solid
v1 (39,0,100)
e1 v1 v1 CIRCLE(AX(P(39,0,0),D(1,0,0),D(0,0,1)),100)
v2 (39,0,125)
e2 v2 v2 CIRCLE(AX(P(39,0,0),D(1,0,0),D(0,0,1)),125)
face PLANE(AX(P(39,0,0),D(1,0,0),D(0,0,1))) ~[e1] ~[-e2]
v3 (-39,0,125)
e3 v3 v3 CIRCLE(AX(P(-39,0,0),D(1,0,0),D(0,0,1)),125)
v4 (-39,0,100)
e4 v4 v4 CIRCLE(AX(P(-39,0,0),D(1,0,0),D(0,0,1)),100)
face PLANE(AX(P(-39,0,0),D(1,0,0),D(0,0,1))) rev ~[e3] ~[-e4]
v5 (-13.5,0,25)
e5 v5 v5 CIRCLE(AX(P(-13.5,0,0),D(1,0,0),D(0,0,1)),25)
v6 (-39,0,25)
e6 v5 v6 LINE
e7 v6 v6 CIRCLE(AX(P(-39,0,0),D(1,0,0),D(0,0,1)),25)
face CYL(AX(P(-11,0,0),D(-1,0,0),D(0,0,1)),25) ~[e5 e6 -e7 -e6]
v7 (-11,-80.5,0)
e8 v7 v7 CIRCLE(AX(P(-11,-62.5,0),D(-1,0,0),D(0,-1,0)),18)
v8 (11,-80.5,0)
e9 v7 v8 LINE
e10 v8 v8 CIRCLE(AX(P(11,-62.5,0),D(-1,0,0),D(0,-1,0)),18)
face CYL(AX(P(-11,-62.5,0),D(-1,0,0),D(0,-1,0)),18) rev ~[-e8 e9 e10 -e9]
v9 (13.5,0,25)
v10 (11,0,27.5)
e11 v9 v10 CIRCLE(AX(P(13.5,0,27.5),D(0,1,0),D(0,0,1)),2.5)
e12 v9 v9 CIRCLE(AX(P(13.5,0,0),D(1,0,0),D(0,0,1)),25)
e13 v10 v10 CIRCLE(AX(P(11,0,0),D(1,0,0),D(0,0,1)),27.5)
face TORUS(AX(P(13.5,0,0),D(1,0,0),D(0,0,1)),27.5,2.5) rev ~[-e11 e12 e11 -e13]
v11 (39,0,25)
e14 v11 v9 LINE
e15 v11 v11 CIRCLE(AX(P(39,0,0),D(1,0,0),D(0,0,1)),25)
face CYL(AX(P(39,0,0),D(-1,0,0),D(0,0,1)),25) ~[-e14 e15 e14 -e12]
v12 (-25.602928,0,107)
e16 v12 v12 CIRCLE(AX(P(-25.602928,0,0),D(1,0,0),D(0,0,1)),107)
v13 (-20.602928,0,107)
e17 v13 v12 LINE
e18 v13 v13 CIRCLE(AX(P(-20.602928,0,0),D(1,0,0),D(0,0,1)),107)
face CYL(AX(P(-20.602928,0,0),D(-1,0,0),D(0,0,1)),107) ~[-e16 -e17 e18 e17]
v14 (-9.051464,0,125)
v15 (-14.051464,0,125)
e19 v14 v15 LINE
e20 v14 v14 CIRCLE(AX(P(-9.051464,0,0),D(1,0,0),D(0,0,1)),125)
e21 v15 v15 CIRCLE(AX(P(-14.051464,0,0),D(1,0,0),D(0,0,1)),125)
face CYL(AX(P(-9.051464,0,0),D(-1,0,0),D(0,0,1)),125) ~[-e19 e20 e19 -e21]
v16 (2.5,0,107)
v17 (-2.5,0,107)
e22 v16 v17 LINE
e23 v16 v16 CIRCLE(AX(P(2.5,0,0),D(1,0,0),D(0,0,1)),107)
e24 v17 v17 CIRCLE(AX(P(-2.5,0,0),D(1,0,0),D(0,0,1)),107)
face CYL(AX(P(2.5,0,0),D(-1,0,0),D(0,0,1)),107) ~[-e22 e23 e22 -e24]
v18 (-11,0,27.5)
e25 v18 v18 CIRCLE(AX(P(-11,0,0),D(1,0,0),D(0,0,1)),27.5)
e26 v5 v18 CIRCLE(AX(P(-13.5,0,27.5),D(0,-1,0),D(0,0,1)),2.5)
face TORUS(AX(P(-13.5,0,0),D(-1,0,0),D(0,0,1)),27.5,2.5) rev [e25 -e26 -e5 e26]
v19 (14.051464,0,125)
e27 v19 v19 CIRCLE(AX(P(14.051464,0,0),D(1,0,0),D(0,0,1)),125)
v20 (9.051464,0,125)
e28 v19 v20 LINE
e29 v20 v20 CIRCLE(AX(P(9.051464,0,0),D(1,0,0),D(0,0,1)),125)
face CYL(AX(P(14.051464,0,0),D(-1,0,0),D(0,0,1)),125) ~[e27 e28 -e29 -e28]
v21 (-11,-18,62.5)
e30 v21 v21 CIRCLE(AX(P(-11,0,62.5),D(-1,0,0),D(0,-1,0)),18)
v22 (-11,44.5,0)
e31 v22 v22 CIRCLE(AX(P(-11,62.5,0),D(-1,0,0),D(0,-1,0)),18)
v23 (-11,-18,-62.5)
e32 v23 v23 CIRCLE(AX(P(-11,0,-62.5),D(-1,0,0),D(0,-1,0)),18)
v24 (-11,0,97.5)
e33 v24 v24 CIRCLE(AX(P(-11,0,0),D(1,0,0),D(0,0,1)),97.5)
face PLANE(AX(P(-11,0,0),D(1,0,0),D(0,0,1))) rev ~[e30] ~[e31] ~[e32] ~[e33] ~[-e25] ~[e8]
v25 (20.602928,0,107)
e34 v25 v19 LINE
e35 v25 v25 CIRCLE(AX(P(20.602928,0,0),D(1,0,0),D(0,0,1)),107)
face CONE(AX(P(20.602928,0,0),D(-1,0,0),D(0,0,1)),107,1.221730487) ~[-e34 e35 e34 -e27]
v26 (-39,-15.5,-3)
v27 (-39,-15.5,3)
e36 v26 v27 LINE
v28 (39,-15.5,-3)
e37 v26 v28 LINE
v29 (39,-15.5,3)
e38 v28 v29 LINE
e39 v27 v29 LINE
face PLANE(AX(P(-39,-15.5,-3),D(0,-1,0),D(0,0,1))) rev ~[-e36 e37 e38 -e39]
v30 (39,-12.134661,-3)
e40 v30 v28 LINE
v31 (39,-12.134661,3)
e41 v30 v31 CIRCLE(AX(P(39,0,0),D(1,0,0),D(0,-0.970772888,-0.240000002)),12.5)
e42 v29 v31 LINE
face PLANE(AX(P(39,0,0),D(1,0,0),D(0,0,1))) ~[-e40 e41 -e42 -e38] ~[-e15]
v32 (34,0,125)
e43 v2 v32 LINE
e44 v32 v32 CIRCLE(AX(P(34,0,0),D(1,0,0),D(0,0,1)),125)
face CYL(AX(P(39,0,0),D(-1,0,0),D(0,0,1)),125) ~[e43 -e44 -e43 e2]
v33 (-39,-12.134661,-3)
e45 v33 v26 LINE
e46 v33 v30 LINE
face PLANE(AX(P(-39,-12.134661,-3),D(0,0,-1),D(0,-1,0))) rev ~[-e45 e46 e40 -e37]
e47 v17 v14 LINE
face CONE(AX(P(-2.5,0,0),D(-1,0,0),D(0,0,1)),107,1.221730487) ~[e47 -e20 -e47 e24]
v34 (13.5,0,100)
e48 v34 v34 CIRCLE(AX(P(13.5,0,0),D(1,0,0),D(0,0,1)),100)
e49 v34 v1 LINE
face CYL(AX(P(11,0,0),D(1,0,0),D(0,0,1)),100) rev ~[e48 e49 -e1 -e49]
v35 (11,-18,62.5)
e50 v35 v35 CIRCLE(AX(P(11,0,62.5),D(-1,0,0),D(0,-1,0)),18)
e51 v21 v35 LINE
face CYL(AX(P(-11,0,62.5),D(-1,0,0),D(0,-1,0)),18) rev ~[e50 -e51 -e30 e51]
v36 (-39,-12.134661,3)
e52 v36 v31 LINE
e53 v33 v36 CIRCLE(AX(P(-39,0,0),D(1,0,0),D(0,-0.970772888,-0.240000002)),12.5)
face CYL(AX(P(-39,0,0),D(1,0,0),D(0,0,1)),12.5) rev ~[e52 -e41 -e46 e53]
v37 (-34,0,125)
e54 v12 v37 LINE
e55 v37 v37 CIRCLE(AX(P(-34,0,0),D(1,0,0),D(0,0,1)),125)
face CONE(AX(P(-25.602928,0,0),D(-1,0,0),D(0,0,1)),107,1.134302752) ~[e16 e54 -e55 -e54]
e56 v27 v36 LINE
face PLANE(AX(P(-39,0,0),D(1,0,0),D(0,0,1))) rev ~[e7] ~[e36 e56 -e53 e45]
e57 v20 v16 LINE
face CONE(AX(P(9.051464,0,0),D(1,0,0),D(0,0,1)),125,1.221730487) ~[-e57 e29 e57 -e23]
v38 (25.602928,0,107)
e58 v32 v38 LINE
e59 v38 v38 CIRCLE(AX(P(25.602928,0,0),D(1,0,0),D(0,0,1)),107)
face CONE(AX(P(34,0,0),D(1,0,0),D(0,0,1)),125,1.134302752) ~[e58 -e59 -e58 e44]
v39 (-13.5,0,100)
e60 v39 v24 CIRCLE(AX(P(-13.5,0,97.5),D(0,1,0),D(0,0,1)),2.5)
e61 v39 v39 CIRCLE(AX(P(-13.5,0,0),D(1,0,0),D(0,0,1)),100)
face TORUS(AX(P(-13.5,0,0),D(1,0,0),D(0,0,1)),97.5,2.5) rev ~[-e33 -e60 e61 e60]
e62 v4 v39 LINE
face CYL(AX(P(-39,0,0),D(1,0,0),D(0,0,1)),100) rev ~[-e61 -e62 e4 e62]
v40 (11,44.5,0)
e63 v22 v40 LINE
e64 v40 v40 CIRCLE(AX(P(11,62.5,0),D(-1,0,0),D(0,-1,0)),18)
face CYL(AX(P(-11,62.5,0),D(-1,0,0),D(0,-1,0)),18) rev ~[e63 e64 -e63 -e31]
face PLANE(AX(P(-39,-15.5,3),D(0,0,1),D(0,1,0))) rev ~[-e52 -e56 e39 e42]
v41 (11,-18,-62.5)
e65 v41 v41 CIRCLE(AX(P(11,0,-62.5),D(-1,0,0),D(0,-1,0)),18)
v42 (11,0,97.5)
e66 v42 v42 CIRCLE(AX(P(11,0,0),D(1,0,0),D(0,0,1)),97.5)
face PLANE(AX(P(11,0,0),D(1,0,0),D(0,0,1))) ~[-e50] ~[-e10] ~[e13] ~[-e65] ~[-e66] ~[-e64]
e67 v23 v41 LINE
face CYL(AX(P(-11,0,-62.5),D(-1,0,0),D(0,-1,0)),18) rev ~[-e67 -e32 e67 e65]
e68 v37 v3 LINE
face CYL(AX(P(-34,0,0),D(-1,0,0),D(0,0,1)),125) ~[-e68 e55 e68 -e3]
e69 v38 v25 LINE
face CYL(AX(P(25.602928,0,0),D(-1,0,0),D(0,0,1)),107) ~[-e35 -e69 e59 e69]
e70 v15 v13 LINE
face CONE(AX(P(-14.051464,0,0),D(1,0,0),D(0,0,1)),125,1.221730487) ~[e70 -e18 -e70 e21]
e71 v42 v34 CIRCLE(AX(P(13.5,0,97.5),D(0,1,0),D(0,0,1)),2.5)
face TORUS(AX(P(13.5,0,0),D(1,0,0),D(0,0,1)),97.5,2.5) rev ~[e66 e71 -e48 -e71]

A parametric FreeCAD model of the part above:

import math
import FreeCAD as App
import Part
import Sketcher

V = App.Vector
Q = App.Units.Quantity


def edges_at(feature, points):
    """Names of the edges that pass closest to the given points."""
    edges = feature.Shape.Edges
    near = lambda p: min(range(len(edges)), key=lambda i: edges[i].distToShape(Part.Vertex(*p))[0])
    return sorted({f"Edge{near(p) + 1}" for p in points})


def add_polygon(sketch, points):
    """Adds a closed chain of lines whose ends are joined by coincident constraints."""
    first, n = sketch.GeometryCount, len(points)
    for a, b in zip(points, points[1:] + points[:1]):
        sketch.addGeometry(Part.LineSegment(App.Vector(*a, 0), App.Vector(*b, 0)), False)
    for i in range(n):
        sketch.addConstraint(Sketcher.Constraint("Coincident", first + i, 2, first + (i + 1) % n, 1))

doc = App.newDocument("Part")
params = doc.addObject("Spreadsheet::Sheet", "Params")
for row, (alias, value) in enumerate([
    ("sketch1_width", "28 mm"),
    ("sketch1_width2", "78 mm"),
    ("sketch1_width3", "5 mm"),
    ("sketch1_height", "75 mm"),
    ("sketch1_height2", "25 mm"),
    ("revolution_angle", "360 deg"),
    ("sketch2_diameter", "36 mm"),
    ("sketch3_height", "6 mm"),
    ("fillet_radius", "2.5 mm"),
], start=1):
    params.set(f"A{row}", alias)
    params.set(f"B{row}", "=" + value)
    params.setAlias(f"B{row}", alias)

body = doc.addObject("PartDesign::Body", "Body")

# Sketch on XZ plane
sketch1 = body.newObject("Sketcher::SketchObject", "Sketch")
sketch1.AttachmentSupport = (doc.getObject("XZ_Plane"), [""])
sketch1.MapMode = "FlatFace"
add_polygon(sketch1, [(-11, 25), (-39, 25), (-39, 12), (39, 12), (39, 25), (11, 25), (11, 100), (39, 100), (39, 125), (34, 125), (26, 107), (21, 107), (14, 125), (9, 125), (2, 107), (-2, 107), (-9, 125), (-14, 125), (-21, 107), (-26, 107), (-34, 125), (-39, 125), (-39, 100), (-11, 100)])  # lines 0-23
sketch1.addConstraint([
    Sketcher.Constraint("Horizontal", 0),
    Sketcher.Constraint("Vertical", 1),
    Sketcher.Constraint("Horizontal", 2),
    Sketcher.Constraint("Vertical", 3),
    Sketcher.Constraint("Horizontal", 4),
    Sketcher.Constraint("Vertical", 5),
    Sketcher.Constraint("Horizontal", 6),
    Sketcher.Constraint("Vertical", 7),
    Sketcher.Constraint("Horizontal", 8),
    Sketcher.Constraint("Horizontal", 10),
    Sketcher.Constraint("Horizontal", 12),
    Sketcher.Constraint("Horizontal", 14),
    Sketcher.Constraint("Horizontal", 16),
    Sketcher.Constraint("Horizontal", 18),
    Sketcher.Constraint("Horizontal", 20),
    Sketcher.Constraint("Vertical", 21),
    Sketcher.Constraint("Horizontal", 22),
    Sketcher.Constraint("Vertical", 23),
    Sketcher.Constraint("Symmetric", 0, 2, 3, 2, -2),
    Sketcher.Constraint("Symmetric", 12, 2, 15, 2, -2),
    Sketcher.Constraint("Symmetric", 10, 2, 17, 2, -2),
    Sketcher.Constraint("Symmetric", 8, 2, 19, 2, -2),
    Sketcher.Constraint("Symmetric", 6, 2, 21, 2, -2),
    Sketcher.Constraint("Parallel", 11, 15),
    Sketcher.Constraint("Parallel", 13, 17),
    Sketcher.Constraint("Horizontal", 8, 2, 11, 2),
    Sketcher.Constraint("Horizontal", 10, 2, 13, 2),
    Sketcher.Constraint("Vertical", 3, 2, 6, 2),
    Sketcher.Constraint("Equal", 0, 4),
    Sketcher.Constraint("Equal", 8, 10),
    Sketcher.Constraint("Equal", 10, 12),
    Sketcher.Constraint("Equal", 12, 14),
    Sketcher.Constraint("Equal", 14, 16),
    Sketcher.Constraint("Equal", 16, 18),
    Sketcher.Constraint("DistanceX", 0, 2, 0, 1, Q("28 mm")),
    Sketcher.Constraint("DistanceX", 2, 1, 2, 2, Q("78 mm")),
    Sketcher.Constraint("DistanceX", 8, 2, 8, 1, Q("5 mm")),
    Sketcher.Constraint("DistanceY", 5, 1, 5, 2, Q("75 mm")),
    Sketcher.Constraint("DistanceY", 7, 1, 7, 2, Q("25 mm")),
    Sketcher.Constraint("Angle", 11, Q("109.999999 deg")),
    Sketcher.Constraint("DistanceY", 1, 2, 1, 1, Q("12.5 mm")),
    Sketcher.Constraint("DistanceY", -1, 1, 0, 2, Q("25 mm")),
    Sketcher.Constraint("DistanceY", -1, 1, 9, 2, Q("107 mm")),
])
sketch1.setExpression("Constraints[58]", "Params.sketch1_width")
sketch1.setExpression("Constraints[59]", "Params.sketch1_width2")
sketch1.setExpression("Constraints[60]", "Params.sketch1_width3")
sketch1.setExpression("Constraints[61]", "Params.sketch1_height")
sketch1.setExpression("Constraints[62]", "Params.sketch1_height2")
revolution = body.newObject("PartDesign::Revolution", "Revolution")
revolution.Profile = sketch1
revolution.ReferenceAxis = (sketch1, ["H_Axis"])
revolution.setExpression("Angle", "Params.revolution_angle")

# Sketch on YZ plane
sketch2 = body.newObject("Sketcher::SketchObject", "Sketch001")
sketch2.AttachmentSupport = (doc.getObject("YZ_Plane"), [""])
sketch2.MapMode = "FlatFace"
sketch2.AttachmentOffset = App.Placement(V(0, 0, -11), App.Rotation())
sketch2.addGeometry([
    Part.Circle(V(62, 0, 0), V(0, 0, 1), 18),
    Part.Circle(V(0, -62, 0), V(0, 0, 1), 18),
    Part.Circle(V(-62, 0, 0), V(0, 0, 1), 18),
    Part.Circle(V(0, 62, 0), V(0, 0, 1), 18),
], False)
sketch2.addConstraint([
    Sketcher.Constraint("Equal", 0, 1),
    Sketcher.Constraint("Equal", 1, 2),
    Sketcher.Constraint("Equal", 2, 3),
    Sketcher.Constraint("Symmetric", 0, 3, 2, 3, -1, 1),
    Sketcher.Constraint("Symmetric", 1, 3, 3, 3, -1, 1),
    Sketcher.Constraint("PointOnObject", 0, 3, -1),
    Sketcher.Constraint("PointOnObject", 1, 3, -2),
    Sketcher.Constraint("Diameter", 0, Q("36 mm")),
    Sketcher.Constraint("DistanceX", 2, 3, 0, 3, Q("125 mm")),
    Sketcher.Constraint("DistanceY", 1, 3, 3, 3, Q("125 mm")),
])
sketch2.setExpression("Constraints[7]", "Params.sketch2_diameter")
pocket1 = body.newObject("PartDesign::Pocket", "Pocket")
pocket1.Profile = sketch2
pocket1.Type = "ThroughAll"
pocket1.Reversed = True

# Sketch on YZ plane
sketch3 = body.newObject("Sketcher::SketchObject", "Sketch002")
sketch3.AttachmentSupport = (doc.getObject("YZ_Plane"), [""])
sketch3.MapMode = "FlatFace"
sketch3.AttachmentOffset = App.Placement(V(0, 0, -39), App.Rotation())
sketch3.addGeometry([
    Part.LineSegment(V(-15.5, 3, 0), V(-12.1, 3, 0)),  # 0
    Part.ArcOfCircle(Part.Circle(V(0, 0, 0), V(0, 0, 1), 12.5), math.radians(166.11), math.radians(180)),  # 1
    Part.ArcOfCircle(Part.Circle(V(0, 0, 0), V(0, 0, 1), 12.5), math.radians(-180), math.radians(-166.11)),  # 2
    Part.LineSegment(V(-12.1, -3, 0), V(-15.5, -3, 0)),  # 3
    Part.LineSegment(V(-15.5, -3, 0), V(-15.5, 3, 0)),  # 4
], False)
sketch3.addConstraint([
    Sketcher.Constraint("Coincident", 0, 2, 1, 1),
    Sketcher.Constraint("Tangent", 1, 2, 2, 1),
    Sketcher.Constraint("Coincident", 2, 2, 3, 1),
    Sketcher.Constraint("Coincident", 3, 2, 4, 1),
    Sketcher.Constraint("Coincident", 4, 2, 0, 1),
    Sketcher.Constraint("Horizontal", 0),
    Sketcher.Constraint("Horizontal", 3),
    Sketcher.Constraint("Vertical", 4),
    Sketcher.Constraint("Coincident", 1, 3, -1, 1),
    Sketcher.Constraint("Equal", 1, 2),
    Sketcher.Constraint("PointOnObject", 1, 2, -1),
    Sketcher.Constraint("Vertical", 0, 2, 2, 2),
    Sketcher.Constraint("DistanceY", 4, 1, 4, 2, Q("6 mm")),
    Sketcher.Constraint("DistanceX", 3, 2, 1, 2, Q("3 mm")),
    Sketcher.Constraint("DistanceX", 1, 2, -1, 1, Q("12.5 mm")),
])
sketch3.setExpression("Constraints[12]", "Params.sketch3_height")
pocket2 = body.newObject("PartDesign::Pocket", "Pocket001")
pocket2.Profile = sketch3
pocket2.Type = "ThroughAll"
pocket2.Reversed = True
doc.recompute()

fillet = body.newObject("PartDesign::Fillet", "Fillet")
fillet.Base = (pocket2, edges_at(pocket2, [
    (-11, 0, -100),
    (-11, 0, -25),
    (11, 0, -25),
    (11, 0, -100),
]))
fillet.setExpression("Radius", "Params.fillet_radius")

doc.recompute()
